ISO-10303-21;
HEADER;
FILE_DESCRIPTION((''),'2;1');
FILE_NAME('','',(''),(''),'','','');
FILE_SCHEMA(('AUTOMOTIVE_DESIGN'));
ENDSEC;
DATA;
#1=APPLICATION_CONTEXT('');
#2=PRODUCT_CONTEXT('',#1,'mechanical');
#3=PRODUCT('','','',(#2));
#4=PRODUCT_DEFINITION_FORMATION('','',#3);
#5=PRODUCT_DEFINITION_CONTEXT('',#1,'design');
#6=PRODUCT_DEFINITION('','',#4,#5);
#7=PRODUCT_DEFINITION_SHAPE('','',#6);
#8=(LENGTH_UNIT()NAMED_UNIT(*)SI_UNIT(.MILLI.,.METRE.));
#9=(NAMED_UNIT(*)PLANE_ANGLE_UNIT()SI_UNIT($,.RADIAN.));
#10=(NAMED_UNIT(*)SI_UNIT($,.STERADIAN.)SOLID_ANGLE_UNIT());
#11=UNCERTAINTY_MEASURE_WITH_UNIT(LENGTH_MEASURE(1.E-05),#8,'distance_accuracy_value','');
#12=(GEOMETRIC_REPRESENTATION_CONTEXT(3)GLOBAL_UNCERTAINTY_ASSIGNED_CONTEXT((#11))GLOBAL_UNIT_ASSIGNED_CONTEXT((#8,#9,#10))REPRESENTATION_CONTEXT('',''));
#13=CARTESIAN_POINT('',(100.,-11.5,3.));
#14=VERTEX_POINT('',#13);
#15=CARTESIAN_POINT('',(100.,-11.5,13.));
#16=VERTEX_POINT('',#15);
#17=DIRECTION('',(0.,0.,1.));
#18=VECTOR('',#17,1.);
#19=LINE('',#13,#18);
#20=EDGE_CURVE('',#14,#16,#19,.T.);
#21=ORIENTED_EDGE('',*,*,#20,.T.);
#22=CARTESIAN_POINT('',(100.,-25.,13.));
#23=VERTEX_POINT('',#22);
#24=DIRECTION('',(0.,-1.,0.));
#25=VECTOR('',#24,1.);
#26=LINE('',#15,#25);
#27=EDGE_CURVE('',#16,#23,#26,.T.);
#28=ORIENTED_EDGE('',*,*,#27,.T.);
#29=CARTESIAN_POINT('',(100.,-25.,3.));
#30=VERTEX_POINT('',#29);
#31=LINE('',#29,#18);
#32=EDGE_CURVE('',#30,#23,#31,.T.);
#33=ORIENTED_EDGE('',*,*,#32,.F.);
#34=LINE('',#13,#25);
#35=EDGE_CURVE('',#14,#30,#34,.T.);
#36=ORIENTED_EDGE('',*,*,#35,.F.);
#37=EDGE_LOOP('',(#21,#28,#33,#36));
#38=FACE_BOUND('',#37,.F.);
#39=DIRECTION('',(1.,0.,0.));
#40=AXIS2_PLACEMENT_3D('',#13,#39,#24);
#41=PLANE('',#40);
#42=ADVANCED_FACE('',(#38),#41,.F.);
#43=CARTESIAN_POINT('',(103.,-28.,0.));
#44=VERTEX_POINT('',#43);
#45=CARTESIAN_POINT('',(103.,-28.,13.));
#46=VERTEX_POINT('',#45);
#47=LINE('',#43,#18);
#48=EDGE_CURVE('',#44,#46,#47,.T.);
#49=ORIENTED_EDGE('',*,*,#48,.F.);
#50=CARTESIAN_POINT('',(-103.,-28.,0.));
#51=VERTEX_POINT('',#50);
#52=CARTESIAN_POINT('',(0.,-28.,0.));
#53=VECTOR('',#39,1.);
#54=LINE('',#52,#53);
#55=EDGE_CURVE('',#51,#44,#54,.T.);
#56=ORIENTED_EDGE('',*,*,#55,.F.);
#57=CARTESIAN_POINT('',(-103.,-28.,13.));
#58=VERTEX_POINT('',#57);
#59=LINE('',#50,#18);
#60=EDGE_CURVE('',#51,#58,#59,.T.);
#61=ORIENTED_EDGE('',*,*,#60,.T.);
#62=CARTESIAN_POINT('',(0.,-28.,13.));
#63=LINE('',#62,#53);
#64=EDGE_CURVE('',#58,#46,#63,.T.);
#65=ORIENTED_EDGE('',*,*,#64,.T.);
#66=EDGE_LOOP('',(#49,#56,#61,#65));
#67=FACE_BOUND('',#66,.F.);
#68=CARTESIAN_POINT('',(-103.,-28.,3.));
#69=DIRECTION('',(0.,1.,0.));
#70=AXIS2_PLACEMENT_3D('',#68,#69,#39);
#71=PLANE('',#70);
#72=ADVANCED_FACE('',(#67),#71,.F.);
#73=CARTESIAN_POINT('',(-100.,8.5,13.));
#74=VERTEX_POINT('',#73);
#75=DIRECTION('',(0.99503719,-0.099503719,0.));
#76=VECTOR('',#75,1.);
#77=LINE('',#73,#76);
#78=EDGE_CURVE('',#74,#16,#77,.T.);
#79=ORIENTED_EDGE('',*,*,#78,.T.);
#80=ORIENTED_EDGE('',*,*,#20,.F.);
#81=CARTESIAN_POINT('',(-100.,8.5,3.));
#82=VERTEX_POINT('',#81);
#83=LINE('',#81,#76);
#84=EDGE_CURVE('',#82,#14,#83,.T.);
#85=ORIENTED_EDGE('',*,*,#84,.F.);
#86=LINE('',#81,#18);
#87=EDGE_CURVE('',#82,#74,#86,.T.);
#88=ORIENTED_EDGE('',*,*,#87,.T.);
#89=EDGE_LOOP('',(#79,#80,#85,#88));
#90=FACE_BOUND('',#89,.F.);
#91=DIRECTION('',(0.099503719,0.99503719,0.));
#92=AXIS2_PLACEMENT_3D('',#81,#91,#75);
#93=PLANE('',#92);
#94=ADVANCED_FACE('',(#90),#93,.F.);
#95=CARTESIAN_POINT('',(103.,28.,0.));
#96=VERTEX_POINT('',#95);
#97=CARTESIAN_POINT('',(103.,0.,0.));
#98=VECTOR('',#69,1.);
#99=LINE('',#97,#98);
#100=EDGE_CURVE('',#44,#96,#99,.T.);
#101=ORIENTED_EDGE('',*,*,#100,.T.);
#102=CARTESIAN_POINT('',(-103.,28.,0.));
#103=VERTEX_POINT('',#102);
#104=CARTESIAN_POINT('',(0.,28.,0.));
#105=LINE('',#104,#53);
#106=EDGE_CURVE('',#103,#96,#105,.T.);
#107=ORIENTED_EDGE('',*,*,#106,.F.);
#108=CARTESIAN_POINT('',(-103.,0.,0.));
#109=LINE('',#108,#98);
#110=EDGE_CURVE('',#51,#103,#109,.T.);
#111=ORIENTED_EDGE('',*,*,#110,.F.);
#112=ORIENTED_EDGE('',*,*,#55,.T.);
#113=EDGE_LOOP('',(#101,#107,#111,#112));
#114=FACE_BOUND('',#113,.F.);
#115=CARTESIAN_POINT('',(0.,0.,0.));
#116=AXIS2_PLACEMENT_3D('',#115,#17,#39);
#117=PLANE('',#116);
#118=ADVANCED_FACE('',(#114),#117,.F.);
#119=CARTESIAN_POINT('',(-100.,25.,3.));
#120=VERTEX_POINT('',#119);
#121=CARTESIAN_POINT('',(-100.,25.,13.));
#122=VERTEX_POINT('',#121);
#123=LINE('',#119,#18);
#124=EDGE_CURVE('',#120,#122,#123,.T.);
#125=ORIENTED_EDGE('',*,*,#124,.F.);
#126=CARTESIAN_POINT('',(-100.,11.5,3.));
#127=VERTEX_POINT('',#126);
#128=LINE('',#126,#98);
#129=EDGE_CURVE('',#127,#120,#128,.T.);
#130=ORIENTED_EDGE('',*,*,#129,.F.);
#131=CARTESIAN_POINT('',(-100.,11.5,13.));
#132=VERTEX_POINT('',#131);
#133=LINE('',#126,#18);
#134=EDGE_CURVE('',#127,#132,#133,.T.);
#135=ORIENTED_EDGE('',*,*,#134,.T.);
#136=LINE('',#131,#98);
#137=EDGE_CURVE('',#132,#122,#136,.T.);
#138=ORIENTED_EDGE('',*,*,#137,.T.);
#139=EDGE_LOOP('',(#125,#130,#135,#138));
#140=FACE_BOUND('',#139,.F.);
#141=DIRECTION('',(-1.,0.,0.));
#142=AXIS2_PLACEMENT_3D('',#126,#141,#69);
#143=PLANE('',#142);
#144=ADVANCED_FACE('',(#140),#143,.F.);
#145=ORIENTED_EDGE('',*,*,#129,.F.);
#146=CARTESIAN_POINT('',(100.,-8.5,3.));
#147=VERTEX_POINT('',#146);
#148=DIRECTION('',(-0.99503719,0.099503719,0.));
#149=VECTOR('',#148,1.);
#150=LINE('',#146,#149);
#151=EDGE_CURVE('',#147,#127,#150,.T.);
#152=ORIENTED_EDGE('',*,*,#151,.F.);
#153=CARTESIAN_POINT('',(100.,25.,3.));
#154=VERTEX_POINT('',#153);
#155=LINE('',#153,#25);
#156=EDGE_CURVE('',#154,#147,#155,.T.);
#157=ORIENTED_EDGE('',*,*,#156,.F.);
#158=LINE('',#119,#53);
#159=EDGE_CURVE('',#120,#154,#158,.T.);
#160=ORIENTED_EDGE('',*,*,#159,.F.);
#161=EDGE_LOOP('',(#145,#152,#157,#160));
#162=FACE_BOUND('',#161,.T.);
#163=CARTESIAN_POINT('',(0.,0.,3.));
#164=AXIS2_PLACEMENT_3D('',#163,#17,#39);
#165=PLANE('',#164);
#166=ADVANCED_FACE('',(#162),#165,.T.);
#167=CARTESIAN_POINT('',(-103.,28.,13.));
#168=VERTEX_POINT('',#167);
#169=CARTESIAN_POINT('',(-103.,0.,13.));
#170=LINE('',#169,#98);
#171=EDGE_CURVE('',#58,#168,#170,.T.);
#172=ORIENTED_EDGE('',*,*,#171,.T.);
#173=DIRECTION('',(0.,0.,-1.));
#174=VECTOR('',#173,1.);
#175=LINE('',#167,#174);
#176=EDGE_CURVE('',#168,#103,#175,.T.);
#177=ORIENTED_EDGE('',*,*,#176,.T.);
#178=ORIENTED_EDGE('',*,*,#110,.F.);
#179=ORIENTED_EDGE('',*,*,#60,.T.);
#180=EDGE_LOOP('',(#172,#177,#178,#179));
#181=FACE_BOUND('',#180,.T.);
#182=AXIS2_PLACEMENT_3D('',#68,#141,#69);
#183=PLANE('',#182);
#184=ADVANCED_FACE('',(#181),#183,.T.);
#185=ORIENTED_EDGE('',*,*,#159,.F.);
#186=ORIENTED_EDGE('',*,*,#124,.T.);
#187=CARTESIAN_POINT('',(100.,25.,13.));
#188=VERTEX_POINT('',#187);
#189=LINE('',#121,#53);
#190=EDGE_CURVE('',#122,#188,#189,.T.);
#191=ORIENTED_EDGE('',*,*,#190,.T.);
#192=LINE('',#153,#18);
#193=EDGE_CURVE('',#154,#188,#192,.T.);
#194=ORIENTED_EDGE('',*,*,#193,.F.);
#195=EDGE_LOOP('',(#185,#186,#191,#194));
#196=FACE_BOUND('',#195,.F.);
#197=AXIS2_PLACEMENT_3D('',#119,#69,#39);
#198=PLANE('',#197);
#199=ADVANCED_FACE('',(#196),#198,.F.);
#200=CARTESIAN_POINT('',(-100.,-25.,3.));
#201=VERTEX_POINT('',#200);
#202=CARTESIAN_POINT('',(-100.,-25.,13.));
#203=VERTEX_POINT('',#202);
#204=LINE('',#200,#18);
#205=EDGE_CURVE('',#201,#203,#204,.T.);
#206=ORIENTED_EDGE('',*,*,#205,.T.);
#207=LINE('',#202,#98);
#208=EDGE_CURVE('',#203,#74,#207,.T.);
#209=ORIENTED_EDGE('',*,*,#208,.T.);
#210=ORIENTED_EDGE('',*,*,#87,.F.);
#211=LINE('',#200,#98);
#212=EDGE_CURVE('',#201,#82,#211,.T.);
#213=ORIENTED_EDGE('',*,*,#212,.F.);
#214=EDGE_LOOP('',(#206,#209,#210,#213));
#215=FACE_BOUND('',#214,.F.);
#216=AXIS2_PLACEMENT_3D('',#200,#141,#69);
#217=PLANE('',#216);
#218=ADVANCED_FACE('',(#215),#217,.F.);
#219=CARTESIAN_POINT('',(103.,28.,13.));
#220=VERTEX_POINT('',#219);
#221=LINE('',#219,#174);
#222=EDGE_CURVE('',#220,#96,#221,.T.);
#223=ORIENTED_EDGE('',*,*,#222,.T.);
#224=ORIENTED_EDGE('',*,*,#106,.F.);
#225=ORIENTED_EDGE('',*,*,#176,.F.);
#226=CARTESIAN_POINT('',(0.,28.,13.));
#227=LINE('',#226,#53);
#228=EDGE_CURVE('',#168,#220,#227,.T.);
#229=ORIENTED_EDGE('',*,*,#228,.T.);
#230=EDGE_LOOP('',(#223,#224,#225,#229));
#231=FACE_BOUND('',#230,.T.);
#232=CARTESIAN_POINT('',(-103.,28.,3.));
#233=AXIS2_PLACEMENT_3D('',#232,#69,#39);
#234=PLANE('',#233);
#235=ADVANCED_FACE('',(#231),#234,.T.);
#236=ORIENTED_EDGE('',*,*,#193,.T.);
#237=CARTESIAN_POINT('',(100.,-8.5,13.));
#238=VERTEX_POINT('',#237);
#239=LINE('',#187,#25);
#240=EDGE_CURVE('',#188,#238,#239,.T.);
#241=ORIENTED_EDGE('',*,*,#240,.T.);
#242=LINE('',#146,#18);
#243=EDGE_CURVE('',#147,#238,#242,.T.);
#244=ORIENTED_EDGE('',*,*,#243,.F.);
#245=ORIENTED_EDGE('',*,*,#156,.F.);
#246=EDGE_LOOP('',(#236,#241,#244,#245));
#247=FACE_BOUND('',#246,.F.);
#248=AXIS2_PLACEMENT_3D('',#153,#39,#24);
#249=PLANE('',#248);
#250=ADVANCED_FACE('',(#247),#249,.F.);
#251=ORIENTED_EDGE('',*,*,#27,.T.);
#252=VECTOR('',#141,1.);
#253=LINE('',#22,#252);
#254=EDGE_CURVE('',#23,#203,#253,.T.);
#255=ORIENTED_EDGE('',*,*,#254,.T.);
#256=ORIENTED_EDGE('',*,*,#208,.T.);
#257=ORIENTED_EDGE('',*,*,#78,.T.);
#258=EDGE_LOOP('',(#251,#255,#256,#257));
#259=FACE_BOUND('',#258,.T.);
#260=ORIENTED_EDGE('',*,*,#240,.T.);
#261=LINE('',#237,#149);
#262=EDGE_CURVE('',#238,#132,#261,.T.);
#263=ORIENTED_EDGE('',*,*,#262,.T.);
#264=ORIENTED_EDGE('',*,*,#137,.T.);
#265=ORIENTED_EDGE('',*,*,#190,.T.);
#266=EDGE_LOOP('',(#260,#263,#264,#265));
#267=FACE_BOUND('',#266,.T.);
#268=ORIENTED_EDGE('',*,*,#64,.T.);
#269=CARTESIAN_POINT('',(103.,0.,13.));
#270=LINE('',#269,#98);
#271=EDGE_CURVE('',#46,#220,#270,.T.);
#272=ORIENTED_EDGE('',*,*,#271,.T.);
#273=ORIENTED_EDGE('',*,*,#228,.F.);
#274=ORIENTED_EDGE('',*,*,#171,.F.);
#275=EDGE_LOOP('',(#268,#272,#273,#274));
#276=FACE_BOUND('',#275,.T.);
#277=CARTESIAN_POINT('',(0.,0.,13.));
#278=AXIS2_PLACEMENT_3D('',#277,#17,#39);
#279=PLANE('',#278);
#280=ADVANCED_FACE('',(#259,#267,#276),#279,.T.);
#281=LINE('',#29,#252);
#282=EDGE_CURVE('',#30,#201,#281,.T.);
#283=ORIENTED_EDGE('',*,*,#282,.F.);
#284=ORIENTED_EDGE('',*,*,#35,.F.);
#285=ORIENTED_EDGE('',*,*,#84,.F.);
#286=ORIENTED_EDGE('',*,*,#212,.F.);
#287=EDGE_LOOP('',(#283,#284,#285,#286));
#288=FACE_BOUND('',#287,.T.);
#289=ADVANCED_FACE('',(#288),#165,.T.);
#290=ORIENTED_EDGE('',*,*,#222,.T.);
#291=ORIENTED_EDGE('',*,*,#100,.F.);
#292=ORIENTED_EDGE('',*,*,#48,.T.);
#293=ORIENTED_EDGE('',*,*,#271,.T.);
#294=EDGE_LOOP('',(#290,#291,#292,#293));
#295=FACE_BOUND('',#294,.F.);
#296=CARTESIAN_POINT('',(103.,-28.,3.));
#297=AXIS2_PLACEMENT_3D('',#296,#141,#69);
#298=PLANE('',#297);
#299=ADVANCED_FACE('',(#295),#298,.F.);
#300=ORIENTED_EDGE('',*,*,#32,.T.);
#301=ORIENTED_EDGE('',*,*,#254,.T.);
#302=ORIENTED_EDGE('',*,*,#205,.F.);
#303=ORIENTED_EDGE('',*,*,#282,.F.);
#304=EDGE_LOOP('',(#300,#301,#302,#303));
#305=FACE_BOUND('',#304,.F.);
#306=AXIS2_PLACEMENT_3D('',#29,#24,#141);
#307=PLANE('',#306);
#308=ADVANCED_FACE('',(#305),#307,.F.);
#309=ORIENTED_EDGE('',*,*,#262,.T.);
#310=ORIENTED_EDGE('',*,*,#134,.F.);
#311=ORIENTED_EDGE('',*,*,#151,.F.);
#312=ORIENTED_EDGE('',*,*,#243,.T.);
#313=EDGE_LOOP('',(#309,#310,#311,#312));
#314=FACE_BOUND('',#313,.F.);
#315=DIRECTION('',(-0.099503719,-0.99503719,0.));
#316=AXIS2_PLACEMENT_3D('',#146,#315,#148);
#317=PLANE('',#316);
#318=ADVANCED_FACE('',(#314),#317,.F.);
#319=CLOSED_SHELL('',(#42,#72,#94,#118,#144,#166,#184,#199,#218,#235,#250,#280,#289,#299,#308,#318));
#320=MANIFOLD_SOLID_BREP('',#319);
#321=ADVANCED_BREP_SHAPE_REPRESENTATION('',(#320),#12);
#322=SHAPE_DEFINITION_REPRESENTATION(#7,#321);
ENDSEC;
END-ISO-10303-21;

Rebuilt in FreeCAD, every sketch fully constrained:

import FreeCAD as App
import Part
import Sketcher
Q = App.Units.Quantity


def add_polygon(sketch, points):
    """Adds a closed chain of lines whose ends are joined by coincident constraints."""
    first, n = sketch.GeometryCount, len(points)
    for a, b in zip(points, points[1:] + points[:1]):
        sketch.addGeometry(Part.LineSegment(App.Vector(*a, 0), App.Vector(*b, 0)), False)
    for i in range(n):
        sketch.addConstraint(Sketcher.Constraint("Coincident", first + i, 2, first + (i + 1) % n, 1))

doc = App.newDocument("Part")
body = doc.addObject("PartDesign::Body", "Body")

sketch1 = body.newObject("Sketcher::SketchObject", "Sketch")
sketch1.AttachmentSupport = (doc.getObject("XY_Plane"), [""])
sketch1.MapMode = "FlatFace"
add_polygon(sketch1, [(-103, 28), (-103, -28), (103, -28), (103, 28)])
sketch1.addConstraint(Sketcher.Constraint("Vertical", 0))
sketch1.addConstraint(Sketcher.Constraint("Horizontal", 1))
sketch1.addConstraint(Sketcher.Constraint("Vertical", 2))
sketch1.addConstraint(Sketcher.Constraint("Horizontal", 3))
sketch1.addConstraint(Sketcher.Constraint("Symmetric", 0, 2, 2, 2, -1, 1))
sketch1.addConstraint(Sketcher.Constraint("DistanceX", 1, 1, 1, 2, Q("206 mm")))
sketch1.addConstraint(Sketcher.Constraint("DistanceY", 0, 2, 0, 1, Q("56 mm")))
pad1 = body.newObject("PartDesign::Pad", "Pad")
pad1.Profile = sketch1
pad1.Length = 3

sketch2 = body.newObject("Sketcher::SketchObject", "Sketch001")
sketch2.AttachmentSupport = (doc.getObject("XY_Plane"), [""])
sketch2.MapMode = "FlatFace"
sketch2.AttachmentOffset = App.Placement(App.Vector(0, 0, 3), App.Rotation())
add_polygon(sketch2, [(-103, 28), (-103, -28), (103, -28), (103, 28)])
add_polygon(sketch2, [(100, -12), (100, -25), (-100, -25), (-100, 8)])
add_polygon(sketch2, [(100, -8), (-100, 12), (-100, 25), (100, 25)])
sketch2.addConstraint(Sketcher.Constraint("Vertical", 0))
sketch2.addConstraint(Sketcher.Constraint("Horizontal", 1))
sketch2.addConstraint(Sketcher.Constraint("Vertical", 2))
sketch2.addConstraint(Sketcher.Constraint("Horizontal", 3))
sketch2.addConstraint(Sketcher.Constraint("Vertical", 4))
sketch2.addConstraint(Sketcher.Constraint("Horizontal", 5))
sketch2.addConstraint(Sketcher.Constraint("Vertical", 6))
sketch2.addConstraint(Sketcher.Constraint("Vertical", 9))
sketch2.addConstraint(Sketcher.Constraint("Horizontal", 10))
sketch2.addConstraint(Sketcher.Constraint("Vertical", 11))
sketch2.addConstraint(Sketcher.Constraint("Symmetric", 0, 2, 2, 2, -1, 1))
sketch2.addConstraint(Sketcher.Constraint("Symmetric", 7, 2, 8, 2, -1, 1))
sketch2.addConstraint(Sketcher.Constraint("Symmetric", 5, 2, 10, 2, -1, 1))
sketch2.addConstraint(Sketcher.Constraint("Parallel", 7, 8))
sketch2.addConstraint(Sketcher.Constraint("Vertical", 6, 2, 8, 2))
sketch2.addConstraint(Sketcher.Constraint("DistanceX", 1, 1, 1, 2, Q("206 mm")))
sketch2.addConstraint(Sketcher.Constraint("DistanceX", 5, 2, 5, 1, Q("200 mm")))
sketch2.addConstraint(Sketcher.Constraint("DistanceY", 0, 2, 0, 1, Q("56 mm")))
sketch2.addConstraint(Sketcher.Constraint("DistanceY", 4, 2, 4, 1, Q("13.5 mm")))
sketch2.addConstraint(Sketcher.Constraint("DistanceY", 6, 1, 6, 2, Q("33.5 mm")))
sketch2.addConstraint(Sketcher.Constraint("DistanceY", 4, 2, -1, 1, Q("25 mm")))
pad2 = body.newObject("PartDesign::Pad", "Pad001")
pad2.Profile = sketch2
pad2.Length = 10

doc.recompute()
